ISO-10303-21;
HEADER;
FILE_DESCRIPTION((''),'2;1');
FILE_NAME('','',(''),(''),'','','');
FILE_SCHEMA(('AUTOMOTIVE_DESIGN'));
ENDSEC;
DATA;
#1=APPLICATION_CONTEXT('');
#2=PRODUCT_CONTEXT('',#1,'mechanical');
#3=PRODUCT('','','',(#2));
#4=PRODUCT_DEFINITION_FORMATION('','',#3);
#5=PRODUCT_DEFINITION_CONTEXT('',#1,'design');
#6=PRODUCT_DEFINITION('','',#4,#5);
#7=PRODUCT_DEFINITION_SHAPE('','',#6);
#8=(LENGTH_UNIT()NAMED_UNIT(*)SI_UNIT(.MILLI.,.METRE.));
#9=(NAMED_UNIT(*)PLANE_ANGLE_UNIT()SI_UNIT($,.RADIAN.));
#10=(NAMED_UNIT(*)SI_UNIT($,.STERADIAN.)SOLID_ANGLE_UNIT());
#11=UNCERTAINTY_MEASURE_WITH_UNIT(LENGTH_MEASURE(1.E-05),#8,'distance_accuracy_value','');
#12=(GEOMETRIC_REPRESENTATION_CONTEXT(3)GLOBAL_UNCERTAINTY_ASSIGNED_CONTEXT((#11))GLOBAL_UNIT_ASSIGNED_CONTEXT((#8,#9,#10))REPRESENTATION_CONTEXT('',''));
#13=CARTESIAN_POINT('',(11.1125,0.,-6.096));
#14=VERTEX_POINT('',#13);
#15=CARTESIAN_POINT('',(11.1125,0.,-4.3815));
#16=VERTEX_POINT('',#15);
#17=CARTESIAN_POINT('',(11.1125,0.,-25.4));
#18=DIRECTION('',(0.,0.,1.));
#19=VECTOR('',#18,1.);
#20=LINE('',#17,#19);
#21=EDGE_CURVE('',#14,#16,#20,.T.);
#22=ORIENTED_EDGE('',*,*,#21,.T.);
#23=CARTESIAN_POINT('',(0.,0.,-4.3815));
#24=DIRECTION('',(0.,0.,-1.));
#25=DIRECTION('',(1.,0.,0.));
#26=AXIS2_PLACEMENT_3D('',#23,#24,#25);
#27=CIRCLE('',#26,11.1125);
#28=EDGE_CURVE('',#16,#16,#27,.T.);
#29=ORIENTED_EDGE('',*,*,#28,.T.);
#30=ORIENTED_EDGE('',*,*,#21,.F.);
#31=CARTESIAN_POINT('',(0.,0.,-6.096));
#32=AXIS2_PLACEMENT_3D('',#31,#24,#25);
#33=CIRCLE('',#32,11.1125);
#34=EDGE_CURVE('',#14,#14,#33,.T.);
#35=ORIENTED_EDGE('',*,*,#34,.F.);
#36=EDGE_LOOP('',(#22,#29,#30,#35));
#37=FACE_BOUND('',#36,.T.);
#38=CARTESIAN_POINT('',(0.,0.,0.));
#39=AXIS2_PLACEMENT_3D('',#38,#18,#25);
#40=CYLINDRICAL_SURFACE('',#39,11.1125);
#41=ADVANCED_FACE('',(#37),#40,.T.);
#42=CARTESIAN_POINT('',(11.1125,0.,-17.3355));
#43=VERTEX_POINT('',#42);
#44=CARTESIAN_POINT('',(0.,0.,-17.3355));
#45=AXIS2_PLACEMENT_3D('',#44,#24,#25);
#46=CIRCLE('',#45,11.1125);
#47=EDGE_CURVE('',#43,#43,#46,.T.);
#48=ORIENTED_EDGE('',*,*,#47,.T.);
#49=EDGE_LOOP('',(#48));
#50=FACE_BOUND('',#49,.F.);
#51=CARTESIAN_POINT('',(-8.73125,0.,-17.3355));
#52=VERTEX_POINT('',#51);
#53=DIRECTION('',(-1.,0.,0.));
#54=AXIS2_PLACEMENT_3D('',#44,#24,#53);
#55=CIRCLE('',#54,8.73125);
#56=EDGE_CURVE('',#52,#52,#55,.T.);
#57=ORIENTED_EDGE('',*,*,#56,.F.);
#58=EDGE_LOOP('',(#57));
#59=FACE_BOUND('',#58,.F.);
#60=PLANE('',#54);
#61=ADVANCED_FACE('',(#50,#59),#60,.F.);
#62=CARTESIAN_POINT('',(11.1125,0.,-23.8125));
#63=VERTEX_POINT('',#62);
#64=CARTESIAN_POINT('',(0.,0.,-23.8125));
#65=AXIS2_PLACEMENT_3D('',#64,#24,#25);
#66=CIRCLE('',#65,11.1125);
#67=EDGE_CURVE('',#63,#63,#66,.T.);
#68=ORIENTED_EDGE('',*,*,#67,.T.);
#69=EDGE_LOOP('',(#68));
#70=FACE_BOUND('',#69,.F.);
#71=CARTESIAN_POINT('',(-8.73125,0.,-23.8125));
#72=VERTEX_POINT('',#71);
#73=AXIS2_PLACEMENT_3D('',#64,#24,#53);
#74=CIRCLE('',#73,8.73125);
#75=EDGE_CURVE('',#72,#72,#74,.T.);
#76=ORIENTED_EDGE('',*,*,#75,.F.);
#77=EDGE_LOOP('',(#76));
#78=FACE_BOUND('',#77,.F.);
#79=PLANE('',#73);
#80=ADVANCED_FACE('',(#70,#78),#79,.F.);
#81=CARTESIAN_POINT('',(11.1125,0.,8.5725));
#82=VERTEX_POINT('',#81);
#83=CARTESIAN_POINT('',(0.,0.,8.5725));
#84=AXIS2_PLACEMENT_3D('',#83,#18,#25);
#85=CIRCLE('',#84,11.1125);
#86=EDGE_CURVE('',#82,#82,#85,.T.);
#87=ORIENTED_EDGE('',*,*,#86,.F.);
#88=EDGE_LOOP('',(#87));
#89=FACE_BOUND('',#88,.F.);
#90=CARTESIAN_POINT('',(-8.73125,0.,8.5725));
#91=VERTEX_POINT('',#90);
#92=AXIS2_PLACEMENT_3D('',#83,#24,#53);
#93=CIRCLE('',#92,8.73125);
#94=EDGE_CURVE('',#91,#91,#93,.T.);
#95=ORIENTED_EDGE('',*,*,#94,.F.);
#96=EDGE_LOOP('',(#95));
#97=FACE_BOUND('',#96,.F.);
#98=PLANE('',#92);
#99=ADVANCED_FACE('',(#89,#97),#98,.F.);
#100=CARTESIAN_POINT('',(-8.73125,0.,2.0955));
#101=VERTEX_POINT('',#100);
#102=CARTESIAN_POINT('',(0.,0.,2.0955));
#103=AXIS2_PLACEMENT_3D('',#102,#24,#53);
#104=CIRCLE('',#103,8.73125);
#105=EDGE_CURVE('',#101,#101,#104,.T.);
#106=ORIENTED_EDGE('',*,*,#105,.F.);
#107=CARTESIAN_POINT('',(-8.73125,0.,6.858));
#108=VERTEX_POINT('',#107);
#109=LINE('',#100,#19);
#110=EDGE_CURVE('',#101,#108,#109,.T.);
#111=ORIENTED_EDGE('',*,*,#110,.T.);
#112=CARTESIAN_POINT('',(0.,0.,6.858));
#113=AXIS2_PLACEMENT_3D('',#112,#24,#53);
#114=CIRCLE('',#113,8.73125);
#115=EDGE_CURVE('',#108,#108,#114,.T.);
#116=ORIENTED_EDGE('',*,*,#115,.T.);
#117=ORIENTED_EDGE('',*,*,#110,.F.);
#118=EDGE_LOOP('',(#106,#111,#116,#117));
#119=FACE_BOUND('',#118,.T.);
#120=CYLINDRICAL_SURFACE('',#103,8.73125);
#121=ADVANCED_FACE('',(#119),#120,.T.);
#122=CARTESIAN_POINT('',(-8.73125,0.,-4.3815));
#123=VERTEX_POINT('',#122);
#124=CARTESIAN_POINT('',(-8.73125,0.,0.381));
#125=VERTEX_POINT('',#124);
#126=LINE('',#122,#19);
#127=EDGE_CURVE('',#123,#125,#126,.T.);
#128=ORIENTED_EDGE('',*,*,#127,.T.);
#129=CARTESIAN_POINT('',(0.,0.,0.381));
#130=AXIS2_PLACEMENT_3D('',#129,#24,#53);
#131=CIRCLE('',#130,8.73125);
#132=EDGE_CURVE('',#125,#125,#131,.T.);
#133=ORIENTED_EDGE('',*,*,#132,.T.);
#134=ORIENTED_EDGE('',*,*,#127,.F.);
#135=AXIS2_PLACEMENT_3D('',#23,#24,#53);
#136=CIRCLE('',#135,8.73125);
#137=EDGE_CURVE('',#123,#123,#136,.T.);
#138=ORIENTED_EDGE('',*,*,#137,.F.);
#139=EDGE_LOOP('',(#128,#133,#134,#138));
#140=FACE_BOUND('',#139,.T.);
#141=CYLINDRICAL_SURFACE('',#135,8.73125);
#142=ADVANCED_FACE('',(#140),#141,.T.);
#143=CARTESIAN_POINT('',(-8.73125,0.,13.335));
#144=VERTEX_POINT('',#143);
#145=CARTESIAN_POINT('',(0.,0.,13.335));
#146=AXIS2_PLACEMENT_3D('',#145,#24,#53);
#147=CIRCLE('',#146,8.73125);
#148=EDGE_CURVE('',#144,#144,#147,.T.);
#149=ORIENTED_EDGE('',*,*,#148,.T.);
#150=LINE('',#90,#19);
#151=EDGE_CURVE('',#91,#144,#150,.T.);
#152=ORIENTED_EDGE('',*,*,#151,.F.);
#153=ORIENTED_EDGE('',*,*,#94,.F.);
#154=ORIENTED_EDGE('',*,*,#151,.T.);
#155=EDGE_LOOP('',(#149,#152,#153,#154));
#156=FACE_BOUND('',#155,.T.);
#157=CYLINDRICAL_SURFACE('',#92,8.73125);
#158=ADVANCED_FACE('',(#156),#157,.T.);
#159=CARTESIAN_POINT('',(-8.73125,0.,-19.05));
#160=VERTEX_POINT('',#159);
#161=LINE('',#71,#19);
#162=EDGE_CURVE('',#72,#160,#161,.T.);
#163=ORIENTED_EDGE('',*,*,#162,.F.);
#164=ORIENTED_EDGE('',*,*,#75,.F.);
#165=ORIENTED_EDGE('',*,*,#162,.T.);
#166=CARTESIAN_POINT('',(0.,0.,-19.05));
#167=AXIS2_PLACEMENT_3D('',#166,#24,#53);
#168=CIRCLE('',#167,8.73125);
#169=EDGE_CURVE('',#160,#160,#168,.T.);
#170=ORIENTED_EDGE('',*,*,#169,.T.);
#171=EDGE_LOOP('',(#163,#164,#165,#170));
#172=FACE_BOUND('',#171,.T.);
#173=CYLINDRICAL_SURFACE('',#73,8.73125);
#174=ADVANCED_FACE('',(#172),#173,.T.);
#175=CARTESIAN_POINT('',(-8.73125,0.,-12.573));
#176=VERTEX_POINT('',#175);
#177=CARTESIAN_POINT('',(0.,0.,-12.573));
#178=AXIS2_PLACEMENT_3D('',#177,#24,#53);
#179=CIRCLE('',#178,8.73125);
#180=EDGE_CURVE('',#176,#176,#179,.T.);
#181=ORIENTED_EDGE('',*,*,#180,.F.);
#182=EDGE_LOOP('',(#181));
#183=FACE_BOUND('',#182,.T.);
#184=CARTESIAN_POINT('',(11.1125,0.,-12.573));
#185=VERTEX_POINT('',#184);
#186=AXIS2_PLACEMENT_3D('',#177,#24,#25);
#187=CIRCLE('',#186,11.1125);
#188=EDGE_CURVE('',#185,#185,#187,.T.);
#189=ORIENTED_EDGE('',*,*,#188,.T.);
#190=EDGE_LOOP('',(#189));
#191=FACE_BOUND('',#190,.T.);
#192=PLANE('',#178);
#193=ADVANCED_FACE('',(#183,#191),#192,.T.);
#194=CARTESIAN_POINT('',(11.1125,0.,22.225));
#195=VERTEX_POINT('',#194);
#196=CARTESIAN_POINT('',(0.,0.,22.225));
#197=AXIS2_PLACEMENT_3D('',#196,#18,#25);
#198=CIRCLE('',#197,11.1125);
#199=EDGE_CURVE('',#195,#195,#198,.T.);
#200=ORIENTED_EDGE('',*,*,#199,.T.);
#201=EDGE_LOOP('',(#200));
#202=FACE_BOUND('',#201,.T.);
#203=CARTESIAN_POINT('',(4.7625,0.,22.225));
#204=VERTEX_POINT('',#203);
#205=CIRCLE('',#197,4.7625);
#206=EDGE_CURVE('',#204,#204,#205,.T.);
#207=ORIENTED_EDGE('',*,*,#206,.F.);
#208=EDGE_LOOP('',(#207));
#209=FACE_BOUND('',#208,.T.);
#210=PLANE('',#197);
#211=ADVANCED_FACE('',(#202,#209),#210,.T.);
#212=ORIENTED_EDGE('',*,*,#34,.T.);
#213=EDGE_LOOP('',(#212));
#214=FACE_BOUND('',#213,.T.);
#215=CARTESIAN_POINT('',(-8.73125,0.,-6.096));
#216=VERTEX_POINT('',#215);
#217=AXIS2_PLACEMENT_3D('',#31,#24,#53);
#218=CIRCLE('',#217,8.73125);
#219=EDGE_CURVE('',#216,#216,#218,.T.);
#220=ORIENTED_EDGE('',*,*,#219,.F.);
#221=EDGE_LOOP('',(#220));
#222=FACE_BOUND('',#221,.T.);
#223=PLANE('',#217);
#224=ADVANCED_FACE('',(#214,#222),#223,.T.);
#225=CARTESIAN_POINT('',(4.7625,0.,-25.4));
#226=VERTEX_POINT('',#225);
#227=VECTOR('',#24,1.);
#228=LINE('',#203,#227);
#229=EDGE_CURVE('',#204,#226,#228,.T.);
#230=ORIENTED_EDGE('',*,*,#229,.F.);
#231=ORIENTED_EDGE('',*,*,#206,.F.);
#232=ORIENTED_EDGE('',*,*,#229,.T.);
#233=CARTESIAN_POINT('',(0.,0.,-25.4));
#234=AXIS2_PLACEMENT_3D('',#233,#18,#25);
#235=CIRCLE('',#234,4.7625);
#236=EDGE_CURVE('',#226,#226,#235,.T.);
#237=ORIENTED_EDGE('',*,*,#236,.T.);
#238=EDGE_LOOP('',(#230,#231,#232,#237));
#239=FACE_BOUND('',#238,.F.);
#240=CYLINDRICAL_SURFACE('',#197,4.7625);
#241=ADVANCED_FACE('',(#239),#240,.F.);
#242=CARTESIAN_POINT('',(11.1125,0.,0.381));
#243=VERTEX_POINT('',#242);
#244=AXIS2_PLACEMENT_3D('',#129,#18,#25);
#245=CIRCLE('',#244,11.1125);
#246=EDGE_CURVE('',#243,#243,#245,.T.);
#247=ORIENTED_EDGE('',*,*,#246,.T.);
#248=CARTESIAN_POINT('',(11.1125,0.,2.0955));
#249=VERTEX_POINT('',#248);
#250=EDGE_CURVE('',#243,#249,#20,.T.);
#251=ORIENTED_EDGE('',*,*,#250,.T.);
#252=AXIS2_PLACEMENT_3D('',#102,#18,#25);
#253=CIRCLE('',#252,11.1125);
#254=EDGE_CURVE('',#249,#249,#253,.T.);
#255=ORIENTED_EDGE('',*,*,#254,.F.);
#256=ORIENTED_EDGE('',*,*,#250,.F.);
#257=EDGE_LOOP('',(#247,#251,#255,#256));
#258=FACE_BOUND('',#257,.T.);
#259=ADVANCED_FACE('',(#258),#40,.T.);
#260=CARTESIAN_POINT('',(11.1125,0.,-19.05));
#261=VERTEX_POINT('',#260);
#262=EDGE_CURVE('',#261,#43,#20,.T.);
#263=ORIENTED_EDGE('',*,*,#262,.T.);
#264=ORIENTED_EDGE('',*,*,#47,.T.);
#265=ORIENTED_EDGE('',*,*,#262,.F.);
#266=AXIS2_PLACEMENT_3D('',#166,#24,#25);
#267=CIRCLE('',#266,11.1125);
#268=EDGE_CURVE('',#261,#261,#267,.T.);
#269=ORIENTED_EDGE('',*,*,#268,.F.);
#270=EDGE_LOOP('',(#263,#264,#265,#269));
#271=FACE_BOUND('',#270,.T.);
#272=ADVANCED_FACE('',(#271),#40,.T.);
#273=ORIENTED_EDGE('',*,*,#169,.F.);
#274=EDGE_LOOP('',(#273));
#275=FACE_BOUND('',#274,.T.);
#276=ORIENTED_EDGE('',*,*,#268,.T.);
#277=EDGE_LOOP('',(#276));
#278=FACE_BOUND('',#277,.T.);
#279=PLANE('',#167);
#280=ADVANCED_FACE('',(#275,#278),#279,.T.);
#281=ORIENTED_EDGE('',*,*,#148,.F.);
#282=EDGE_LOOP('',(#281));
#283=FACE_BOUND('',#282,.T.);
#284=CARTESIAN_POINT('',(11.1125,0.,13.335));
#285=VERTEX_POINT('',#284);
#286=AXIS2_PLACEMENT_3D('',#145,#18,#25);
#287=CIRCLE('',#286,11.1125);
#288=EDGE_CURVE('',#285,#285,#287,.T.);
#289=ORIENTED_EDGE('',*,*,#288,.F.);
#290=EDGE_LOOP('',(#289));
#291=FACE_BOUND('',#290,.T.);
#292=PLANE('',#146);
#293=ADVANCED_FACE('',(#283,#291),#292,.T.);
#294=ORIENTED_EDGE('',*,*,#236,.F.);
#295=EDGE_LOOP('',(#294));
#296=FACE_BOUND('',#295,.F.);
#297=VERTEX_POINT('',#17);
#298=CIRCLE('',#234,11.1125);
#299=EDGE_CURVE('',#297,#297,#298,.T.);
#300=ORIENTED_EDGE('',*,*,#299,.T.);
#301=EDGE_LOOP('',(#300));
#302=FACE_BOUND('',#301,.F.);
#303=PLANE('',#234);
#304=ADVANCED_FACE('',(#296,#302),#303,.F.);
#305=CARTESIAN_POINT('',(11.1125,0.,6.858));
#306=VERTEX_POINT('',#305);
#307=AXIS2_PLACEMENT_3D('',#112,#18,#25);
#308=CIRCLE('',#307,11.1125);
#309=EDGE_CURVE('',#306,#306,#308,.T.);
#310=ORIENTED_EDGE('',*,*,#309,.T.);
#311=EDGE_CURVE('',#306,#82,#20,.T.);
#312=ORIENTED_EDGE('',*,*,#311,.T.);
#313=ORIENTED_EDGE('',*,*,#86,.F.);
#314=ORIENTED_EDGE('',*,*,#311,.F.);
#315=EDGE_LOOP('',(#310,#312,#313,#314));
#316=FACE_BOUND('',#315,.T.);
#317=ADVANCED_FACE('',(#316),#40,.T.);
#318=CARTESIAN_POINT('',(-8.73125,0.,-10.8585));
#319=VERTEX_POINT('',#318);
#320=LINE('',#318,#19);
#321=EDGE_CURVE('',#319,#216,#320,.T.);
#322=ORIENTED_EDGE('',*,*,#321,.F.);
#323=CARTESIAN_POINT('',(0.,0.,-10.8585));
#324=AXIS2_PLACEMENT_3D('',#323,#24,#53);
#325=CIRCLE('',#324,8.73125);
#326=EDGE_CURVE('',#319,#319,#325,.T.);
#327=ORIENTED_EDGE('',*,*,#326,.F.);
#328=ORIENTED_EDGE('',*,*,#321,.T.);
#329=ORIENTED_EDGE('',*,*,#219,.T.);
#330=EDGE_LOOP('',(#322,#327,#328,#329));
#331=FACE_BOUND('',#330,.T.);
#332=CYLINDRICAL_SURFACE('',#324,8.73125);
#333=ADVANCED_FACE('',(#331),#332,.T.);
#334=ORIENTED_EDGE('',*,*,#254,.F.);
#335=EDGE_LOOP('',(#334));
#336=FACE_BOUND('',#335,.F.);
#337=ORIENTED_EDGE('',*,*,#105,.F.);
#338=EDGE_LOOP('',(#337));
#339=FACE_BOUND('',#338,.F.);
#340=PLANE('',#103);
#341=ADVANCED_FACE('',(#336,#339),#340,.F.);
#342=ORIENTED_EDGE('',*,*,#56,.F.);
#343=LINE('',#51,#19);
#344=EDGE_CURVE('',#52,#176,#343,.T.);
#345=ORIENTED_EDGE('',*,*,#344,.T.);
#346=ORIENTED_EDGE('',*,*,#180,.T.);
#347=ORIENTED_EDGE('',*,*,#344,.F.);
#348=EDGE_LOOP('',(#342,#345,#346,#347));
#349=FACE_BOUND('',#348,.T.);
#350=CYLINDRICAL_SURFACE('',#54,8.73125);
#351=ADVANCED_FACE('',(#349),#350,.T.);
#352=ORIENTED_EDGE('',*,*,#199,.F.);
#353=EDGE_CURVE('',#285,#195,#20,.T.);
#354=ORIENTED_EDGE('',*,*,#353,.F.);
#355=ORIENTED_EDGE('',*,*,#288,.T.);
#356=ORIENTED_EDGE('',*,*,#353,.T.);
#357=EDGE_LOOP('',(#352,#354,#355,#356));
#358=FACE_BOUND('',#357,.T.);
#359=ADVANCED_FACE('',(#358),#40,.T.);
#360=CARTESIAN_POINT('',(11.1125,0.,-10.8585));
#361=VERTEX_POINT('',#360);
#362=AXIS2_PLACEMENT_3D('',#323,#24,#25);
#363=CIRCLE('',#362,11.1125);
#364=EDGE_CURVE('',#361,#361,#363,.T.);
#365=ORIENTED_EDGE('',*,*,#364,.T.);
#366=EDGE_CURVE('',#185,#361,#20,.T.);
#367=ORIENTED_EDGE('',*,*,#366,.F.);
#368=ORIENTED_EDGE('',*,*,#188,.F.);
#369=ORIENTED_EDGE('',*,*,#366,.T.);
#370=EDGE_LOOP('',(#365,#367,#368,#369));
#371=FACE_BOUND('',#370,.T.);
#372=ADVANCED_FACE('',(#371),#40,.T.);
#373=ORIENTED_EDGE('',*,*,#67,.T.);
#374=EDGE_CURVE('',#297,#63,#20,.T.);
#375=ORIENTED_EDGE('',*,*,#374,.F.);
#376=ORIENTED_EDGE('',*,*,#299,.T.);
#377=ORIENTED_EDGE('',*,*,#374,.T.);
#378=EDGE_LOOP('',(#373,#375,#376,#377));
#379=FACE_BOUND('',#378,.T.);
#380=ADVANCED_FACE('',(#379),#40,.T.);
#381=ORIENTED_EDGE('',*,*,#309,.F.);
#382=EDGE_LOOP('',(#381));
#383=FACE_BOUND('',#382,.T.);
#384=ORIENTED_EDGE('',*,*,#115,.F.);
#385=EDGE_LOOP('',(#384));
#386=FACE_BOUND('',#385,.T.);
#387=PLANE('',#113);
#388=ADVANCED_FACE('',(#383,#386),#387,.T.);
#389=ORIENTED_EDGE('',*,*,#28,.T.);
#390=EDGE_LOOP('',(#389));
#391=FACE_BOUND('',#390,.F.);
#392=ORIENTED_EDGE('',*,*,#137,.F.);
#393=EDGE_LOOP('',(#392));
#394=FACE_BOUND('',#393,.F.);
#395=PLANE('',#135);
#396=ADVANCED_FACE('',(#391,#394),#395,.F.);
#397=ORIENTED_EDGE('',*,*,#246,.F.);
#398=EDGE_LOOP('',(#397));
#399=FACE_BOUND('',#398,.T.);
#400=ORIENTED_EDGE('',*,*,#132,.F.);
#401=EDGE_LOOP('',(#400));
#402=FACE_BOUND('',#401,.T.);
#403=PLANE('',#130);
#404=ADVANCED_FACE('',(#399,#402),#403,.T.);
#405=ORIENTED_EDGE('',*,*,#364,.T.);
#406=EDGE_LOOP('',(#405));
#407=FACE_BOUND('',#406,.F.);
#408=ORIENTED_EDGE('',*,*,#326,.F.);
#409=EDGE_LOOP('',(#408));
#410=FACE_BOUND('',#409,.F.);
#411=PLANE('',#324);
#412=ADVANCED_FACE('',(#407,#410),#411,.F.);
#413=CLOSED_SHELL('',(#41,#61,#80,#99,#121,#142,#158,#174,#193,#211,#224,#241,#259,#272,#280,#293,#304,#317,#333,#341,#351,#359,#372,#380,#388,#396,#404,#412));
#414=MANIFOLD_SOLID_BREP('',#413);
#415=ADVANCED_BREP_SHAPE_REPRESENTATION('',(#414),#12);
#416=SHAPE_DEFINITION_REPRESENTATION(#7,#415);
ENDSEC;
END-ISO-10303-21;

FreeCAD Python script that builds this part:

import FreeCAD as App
import Part
import Sketcher

V = App.Vector
Q = App.Units.Quantity

doc = App.newDocument("Part")
body = doc.addObject("PartDesign::Body", "Body")

sketch1 = doc.addObject("Sketcher::SketchObject", "Sketch")
body.addObject(sketch1)
sketch1.AttachmentSupport = (doc.XY_Plane, [""])
sketch1.MapMode = "FlatFace"
sketch1.addGeometry([
    Part.Circle(V(0, 0, 0), V(0, 0, 1), 11.1125),
    Part.Circle(V(0, 0, 0), V(0, 0, 1), 3.2004),
], False)
sketch1.addConstraint([
    Sketcher.Constraint("Coincident", 0, 3, -1, 1),
    Sketcher.Constraint("Coincident", 1, 3, -1, 1),
    Sketcher.Constraint("Diameter", 0, Q("0.875 in")),
    Sketcher.Constraint("Diameter", 1, Q("0.252 in")),
])
pad1 = doc.addObject("PartDesign::Pad", "Pad")
body.addObject(pad1)
pad1.Profile = sketch1
pad1.Length = Q("2 in")
pad1.Midplane = True

sketch2 = doc.addObject("Sketcher::SketchObject", "Sketch001")
body.addObject(sketch2)
sketch2.AttachmentSupport = (doc.XY_Plane, [""])
sketch2.MapMode = "FlatFace"
sketch2.AttachmentOffset = App.Placement(V(0, 0, 1 * 25.4), App.Rotation())
sketch2.addGeometry([
    Part.Circle(V(0, 0, 0), V(0, 0, 1), 11.1125),
    Part.Circle(V(0, 0, 0), V(0, 0, 1), 3.2004),
], False)
sketch2.addConstraint([
    Sketcher.Constraint("Coincident", 0, 3, -1, 1),
    Sketcher.Constraint("Coincident", 1, 3, -1, 1),
    Sketcher.Constraint("Diameter", 0, Q("0.875 in")),
    Sketcher.Constraint("Diameter", 1, Q("0.252 in")),
])
pocket1 = doc.addObject("PartDesign::Pocket", "Pocket")
body.addObject(pocket1)
pocket1.Profile = sketch2
pocket1.Length = Q("0.125 in")

sketch3 = doc.addObject("Sketcher::SketchObject", "Sketch002")
body.addObject(sketch3)
sketch3.AttachmentSupport = (doc.XY_Plane, [""])
sketch3.MapMode = "FlatFace"
sketch3.AttachmentOffset = App.Placement(V(0, 0, 0.875 * 25.4), App.Rotation())
sketch3.addGeometry(Part.Circle(V(0, 0, 0), V(0, 0, 1), 4.7625), False)
sketch3.addConstraint([
    Sketcher.Constraint("Coincident", 0, 3, -1, 1),
    Sketcher.Constraint("Diameter", 0, Q("0.375 in")),
])
pocket2 = doc.addObject("PartDesign::Pocket", "Pocket001")
body.addObject(pocket2)
pocket2.Profile = sketch3
pocket2.Type = "ThroughAll"

sketch4 = doc.addObject("Sketcher::SketchObject", "Sketch003")
body.addObject(sketch4)
sketch4.AttachmentSupport = (doc.XY_Plane, [""])
sketch4.MapMode = "FlatFace"
sketch4.AttachmentOffset = App.Placement(V(0, 0, -0.9375 * 25.4), App.Rotation())
sketch4.addGeometry([
    Part.Circle(V(0, 0, 0), V(0, 0, 1), 11.1125),
    Part.Circle(V(0, 0, 0), V(0, 0, 1), 8.73125),
], False)
sketch4.addConstraint([
    Sketcher.Constraint("Coincident", 0, 3, -1, 1),
    Sketcher.Constraint("Coincident", 1, 3, -1, 1),
    Sketcher.Constraint("Diameter", 0, Q("0.875 in")),
    Sketcher.Constraint("Diameter", 1, Q("0.6875 in")),
])
pocket3 = doc.addObject("PartDesign::Pocket", "Pocket002")
body.addObject(pocket3)
pocket3.Profile = sketch4
pocket3.Length = Q("0.1875 in")
pocket3.Reversed = True
doc.recompute()

linearpattern = doc.addObject("PartDesign::LinearPattern", "LinearPattern")
body.addObject(linearpattern)
linearpattern.Originals = [pocket3]
linearpattern.Direction = (doc.Z_Axis, [""])
linearpattern.Mode = "offset"
linearpattern.Offset = Q("0.255 in")
linearpattern.Occurrences = 6
body.Tip = linearpattern

doc.recompute()
